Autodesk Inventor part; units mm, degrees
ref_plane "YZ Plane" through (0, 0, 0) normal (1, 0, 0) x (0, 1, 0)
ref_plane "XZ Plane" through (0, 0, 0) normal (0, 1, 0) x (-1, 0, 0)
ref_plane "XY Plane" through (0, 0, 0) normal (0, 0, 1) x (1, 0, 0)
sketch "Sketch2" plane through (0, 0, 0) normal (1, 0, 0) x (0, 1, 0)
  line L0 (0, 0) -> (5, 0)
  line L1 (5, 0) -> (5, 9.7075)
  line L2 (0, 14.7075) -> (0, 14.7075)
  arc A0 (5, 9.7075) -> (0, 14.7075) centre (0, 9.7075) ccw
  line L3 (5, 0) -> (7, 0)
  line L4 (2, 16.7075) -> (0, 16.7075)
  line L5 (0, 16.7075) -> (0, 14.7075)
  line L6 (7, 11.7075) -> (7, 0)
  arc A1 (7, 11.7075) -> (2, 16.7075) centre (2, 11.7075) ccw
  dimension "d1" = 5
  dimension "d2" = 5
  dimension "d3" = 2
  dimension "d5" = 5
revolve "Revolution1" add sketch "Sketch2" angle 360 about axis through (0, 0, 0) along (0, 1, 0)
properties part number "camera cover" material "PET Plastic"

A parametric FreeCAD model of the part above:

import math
import FreeCAD as App
import Part
import Sketcher
from FreeCAD import Vector
Q = App.Units.Quantity

doc = App.newDocument("Part")
body = doc.addObject("PartDesign::Body", "Body")

sketch1 = body.newObject("Sketcher::SketchObject", "Sketch")
sketch1.AttachmentSupport = (doc.getObject("YZ_Plane"), [""])
sketch1.MapMode = "FlatFace"
sketch1.addGeometry([
    Part.LineSegment(Vector(5, 9.7, 0), Vector(5, 0, 0)),
    Part.LineSegment(Vector(5, 0, 0), Vector(7, 0, 0)),
    Part.LineSegment(Vector(7, 0, 0), Vector(7, 11.7, 0)),
    Part.ArcOfCircle(Part.Circle(Vector(2, 11.7, 0), Vector(0, 0, 1), 5), math.radians(0), math.radians(90)),
    Part.LineSegment(Vector(2, 16.7, 0), Vector(0, 16.7, 0)),
    Part.LineSegment(Vector(0, 16.7, 0), Vector(0, 14.7, 0)),
    Part.ArcOfCircle(Part.Circle(Vector(0, 9.7, 0), Vector(0, 0, 1), 5), math.radians(0), math.radians(90)),
], False)
sketch1.addConstraint([
    Sketcher.Constraint("Coincident", 0, 2, 1, 1),
    Sketcher.Constraint("Coincident", 1, 2, 2, 1),
    Sketcher.Constraint("Tangent", 2, 2, 3, 1),
    Sketcher.Constraint("Tangent", 3, 2, 4, 1),
    Sketcher.Constraint("Coincident", 4, 2, 5, 1),
    Sketcher.Constraint("Coincident", 5, 2, 6, 2),
    Sketcher.Constraint("Tangent", 6, 1, 0, 1),
    Sketcher.Constraint("Vertical", 0),
    Sketcher.Constraint("Horizontal", 1),
    Sketcher.Constraint("Vertical", 2),
    Sketcher.Constraint("Horizontal", 4),
    Sketcher.Constraint("Vertical", 5),
    Sketcher.Constraint("Equal", 3, 6),
    Sketcher.Constraint("PointOnObject", 6, 3, -2),
    Sketcher.Constraint("PointOnObject", 0, 2, -1),
    Sketcher.Constraint("PointOnObject", 4, 2, -2),
    Sketcher.Constraint("Equal", 4, 5),
    Sketcher.Constraint("Radius", 3, Q("5 mm")),
    Sketcher.Constraint("DistanceX", 1, 1, 1, 2, Q("2 mm")),
    Sketcher.Constraint("DistanceY", 0, 2, 0, 1, Q("9.7075 mm")),
])
revolution = body.newObject("PartDesign::Revolution", "Revolution")
revolution.Profile = sketch1
revolution.ReferenceAxis = (sketch1, ["H_Axis"])
revolution.Angle = 360

doc.recompute()
